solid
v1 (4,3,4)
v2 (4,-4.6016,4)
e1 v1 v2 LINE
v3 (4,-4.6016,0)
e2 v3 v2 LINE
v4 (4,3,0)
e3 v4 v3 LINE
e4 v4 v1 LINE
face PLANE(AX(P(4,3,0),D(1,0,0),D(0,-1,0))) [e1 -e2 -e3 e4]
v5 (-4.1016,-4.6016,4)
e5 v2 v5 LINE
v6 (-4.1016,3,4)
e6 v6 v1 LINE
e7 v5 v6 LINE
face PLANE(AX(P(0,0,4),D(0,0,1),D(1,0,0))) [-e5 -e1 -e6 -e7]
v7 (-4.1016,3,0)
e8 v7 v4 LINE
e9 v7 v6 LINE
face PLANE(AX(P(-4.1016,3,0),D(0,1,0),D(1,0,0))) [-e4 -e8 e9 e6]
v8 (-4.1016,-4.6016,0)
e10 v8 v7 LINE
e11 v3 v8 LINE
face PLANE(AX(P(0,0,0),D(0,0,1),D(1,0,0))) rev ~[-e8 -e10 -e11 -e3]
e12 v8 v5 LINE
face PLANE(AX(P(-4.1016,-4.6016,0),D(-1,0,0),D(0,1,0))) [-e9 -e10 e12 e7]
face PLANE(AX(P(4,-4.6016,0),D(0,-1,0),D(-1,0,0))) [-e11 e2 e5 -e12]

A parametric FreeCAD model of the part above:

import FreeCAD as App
import Part
import Sketcher
Q = App.Units.Quantity


def add_polygon(sketch, points):
    """Adds a closed chain of lines whose ends are joined by coincident constraints."""
    first, n = sketch.GeometryCount, len(points)
    for a, b in zip(points, points[1:] + points[:1]):
        sketch.addGeometry(Part.LineSegment(App.Vector(*a, 0), App.Vector(*b, 0)), False)
    for i in range(n):
        sketch.addConstraint(Sketcher.Constraint("Coincident", first + i, 2, first + (i + 1) % n, 1))

doc = App.newDocument("Part")
body = doc.addObject("PartDesign::Body", "Body")

sketch1 = body.newObject("Sketcher::SketchObject", "Sketch")
sketch1.AttachmentSupport = (doc.getObject("XY_Plane"), [""])
sketch1.MapMode = "FlatFace"
add_polygon(sketch1, [(4, 3), (-4, 3), (-4, -5), (4, -5)])
sketch1.addConstraint(Sketcher.Constraint("Horizontal", 0))
sketch1.addConstraint(Sketcher.Constraint("Vertical", 1))
sketch1.addConstraint(Sketcher.Constraint("Horizontal", 2))
sketch1.addConstraint(Sketcher.Constraint("Vertical", 3))
sketch1.addConstraint(Sketcher.Constraint("DistanceY", -1, 1, 0, 2, Q("3 mm")))
sketch1.addConstraint(Sketcher.Constraint("DistanceX", -1, 1, 2, 2, Q("4 mm")))
sketch1.addConstraint(Sketcher.Constraint("DistanceX", 0, 2, 0, 1, Q("8.1016 mm")))
sketch1.addConstraint(Sketcher.Constraint("DistanceY", 1, 2, 1, 1, Q("7.6016 mm")))
pad1 = body.newObject("PartDesign::Pad", "Pad")
pad1.Profile = sketch1
pad1.Length = 4

doc.recompute()
